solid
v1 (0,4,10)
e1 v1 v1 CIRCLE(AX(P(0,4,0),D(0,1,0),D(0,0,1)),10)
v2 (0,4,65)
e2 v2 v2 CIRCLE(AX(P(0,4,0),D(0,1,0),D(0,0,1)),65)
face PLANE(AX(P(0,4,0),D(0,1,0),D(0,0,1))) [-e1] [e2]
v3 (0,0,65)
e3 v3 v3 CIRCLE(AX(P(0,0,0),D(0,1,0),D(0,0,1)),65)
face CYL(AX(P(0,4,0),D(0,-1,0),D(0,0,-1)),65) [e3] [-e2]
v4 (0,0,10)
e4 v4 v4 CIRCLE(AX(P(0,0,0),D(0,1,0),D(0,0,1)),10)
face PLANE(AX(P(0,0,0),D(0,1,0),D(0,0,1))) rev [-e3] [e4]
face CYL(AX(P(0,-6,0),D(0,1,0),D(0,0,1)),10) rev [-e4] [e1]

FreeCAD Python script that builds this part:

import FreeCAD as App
import Part
import Sketcher

V = App.Vector
Q = App.Units.Quantity

doc = App.newDocument("Part")
body = doc.addObject("PartDesign::Body", "Body")

# Sketch on XZ plane
sketch1 = doc.addObject("Sketcher::SketchObject", "Sketch")
body.addObject(sketch1)
sketch1.AttachmentSupport = (doc.XZ_Plane, [""])
sketch1.MapMode = "FlatFace"
sketch1.addGeometry(Part.Circle(V(0, 0, 0), V(0, 0, 1), 65), False)
sketch1.addConstraint([
    Sketcher.Constraint("Coincident", 0, 3, -1, 1),
    Sketcher.Constraint("Diameter", 0, Q("130 mm")),
])
pad1 = doc.addObject("PartDesign::Pad", "Pad")
body.addObject(pad1)
pad1.Profile = sketch1
pad1.Length = 4
pad1.Reversed = True

# Sketch on XZ plane
sketch2 = doc.addObject("Sketcher::SketchObject", "Sketch001")
body.addObject(sketch2)
sketch2.AttachmentSupport = (doc.XZ_Plane, [""])
sketch2.MapMode = "FlatFace"
sketch2.AttachmentOffset = App.Placement(V(0, 0, -4), App.Rotation())
sketch2.addGeometry(Part.Circle(V(0, 0, 0), V(0, 0, 1), 10), False)
sketch2.addConstraint([
    Sketcher.Constraint("Coincident", 0, 3, -1, 1),
    Sketcher.Constraint("Diameter", 0, Q("20 mm")),
])
pocket1 = doc.addObject("PartDesign::Pocket", "Pocket")
body.addObject(pocket1)
pocket1.Profile = sketch2
pocket1.Length = 10
pocket1.Reversed = True

doc.recompute()
